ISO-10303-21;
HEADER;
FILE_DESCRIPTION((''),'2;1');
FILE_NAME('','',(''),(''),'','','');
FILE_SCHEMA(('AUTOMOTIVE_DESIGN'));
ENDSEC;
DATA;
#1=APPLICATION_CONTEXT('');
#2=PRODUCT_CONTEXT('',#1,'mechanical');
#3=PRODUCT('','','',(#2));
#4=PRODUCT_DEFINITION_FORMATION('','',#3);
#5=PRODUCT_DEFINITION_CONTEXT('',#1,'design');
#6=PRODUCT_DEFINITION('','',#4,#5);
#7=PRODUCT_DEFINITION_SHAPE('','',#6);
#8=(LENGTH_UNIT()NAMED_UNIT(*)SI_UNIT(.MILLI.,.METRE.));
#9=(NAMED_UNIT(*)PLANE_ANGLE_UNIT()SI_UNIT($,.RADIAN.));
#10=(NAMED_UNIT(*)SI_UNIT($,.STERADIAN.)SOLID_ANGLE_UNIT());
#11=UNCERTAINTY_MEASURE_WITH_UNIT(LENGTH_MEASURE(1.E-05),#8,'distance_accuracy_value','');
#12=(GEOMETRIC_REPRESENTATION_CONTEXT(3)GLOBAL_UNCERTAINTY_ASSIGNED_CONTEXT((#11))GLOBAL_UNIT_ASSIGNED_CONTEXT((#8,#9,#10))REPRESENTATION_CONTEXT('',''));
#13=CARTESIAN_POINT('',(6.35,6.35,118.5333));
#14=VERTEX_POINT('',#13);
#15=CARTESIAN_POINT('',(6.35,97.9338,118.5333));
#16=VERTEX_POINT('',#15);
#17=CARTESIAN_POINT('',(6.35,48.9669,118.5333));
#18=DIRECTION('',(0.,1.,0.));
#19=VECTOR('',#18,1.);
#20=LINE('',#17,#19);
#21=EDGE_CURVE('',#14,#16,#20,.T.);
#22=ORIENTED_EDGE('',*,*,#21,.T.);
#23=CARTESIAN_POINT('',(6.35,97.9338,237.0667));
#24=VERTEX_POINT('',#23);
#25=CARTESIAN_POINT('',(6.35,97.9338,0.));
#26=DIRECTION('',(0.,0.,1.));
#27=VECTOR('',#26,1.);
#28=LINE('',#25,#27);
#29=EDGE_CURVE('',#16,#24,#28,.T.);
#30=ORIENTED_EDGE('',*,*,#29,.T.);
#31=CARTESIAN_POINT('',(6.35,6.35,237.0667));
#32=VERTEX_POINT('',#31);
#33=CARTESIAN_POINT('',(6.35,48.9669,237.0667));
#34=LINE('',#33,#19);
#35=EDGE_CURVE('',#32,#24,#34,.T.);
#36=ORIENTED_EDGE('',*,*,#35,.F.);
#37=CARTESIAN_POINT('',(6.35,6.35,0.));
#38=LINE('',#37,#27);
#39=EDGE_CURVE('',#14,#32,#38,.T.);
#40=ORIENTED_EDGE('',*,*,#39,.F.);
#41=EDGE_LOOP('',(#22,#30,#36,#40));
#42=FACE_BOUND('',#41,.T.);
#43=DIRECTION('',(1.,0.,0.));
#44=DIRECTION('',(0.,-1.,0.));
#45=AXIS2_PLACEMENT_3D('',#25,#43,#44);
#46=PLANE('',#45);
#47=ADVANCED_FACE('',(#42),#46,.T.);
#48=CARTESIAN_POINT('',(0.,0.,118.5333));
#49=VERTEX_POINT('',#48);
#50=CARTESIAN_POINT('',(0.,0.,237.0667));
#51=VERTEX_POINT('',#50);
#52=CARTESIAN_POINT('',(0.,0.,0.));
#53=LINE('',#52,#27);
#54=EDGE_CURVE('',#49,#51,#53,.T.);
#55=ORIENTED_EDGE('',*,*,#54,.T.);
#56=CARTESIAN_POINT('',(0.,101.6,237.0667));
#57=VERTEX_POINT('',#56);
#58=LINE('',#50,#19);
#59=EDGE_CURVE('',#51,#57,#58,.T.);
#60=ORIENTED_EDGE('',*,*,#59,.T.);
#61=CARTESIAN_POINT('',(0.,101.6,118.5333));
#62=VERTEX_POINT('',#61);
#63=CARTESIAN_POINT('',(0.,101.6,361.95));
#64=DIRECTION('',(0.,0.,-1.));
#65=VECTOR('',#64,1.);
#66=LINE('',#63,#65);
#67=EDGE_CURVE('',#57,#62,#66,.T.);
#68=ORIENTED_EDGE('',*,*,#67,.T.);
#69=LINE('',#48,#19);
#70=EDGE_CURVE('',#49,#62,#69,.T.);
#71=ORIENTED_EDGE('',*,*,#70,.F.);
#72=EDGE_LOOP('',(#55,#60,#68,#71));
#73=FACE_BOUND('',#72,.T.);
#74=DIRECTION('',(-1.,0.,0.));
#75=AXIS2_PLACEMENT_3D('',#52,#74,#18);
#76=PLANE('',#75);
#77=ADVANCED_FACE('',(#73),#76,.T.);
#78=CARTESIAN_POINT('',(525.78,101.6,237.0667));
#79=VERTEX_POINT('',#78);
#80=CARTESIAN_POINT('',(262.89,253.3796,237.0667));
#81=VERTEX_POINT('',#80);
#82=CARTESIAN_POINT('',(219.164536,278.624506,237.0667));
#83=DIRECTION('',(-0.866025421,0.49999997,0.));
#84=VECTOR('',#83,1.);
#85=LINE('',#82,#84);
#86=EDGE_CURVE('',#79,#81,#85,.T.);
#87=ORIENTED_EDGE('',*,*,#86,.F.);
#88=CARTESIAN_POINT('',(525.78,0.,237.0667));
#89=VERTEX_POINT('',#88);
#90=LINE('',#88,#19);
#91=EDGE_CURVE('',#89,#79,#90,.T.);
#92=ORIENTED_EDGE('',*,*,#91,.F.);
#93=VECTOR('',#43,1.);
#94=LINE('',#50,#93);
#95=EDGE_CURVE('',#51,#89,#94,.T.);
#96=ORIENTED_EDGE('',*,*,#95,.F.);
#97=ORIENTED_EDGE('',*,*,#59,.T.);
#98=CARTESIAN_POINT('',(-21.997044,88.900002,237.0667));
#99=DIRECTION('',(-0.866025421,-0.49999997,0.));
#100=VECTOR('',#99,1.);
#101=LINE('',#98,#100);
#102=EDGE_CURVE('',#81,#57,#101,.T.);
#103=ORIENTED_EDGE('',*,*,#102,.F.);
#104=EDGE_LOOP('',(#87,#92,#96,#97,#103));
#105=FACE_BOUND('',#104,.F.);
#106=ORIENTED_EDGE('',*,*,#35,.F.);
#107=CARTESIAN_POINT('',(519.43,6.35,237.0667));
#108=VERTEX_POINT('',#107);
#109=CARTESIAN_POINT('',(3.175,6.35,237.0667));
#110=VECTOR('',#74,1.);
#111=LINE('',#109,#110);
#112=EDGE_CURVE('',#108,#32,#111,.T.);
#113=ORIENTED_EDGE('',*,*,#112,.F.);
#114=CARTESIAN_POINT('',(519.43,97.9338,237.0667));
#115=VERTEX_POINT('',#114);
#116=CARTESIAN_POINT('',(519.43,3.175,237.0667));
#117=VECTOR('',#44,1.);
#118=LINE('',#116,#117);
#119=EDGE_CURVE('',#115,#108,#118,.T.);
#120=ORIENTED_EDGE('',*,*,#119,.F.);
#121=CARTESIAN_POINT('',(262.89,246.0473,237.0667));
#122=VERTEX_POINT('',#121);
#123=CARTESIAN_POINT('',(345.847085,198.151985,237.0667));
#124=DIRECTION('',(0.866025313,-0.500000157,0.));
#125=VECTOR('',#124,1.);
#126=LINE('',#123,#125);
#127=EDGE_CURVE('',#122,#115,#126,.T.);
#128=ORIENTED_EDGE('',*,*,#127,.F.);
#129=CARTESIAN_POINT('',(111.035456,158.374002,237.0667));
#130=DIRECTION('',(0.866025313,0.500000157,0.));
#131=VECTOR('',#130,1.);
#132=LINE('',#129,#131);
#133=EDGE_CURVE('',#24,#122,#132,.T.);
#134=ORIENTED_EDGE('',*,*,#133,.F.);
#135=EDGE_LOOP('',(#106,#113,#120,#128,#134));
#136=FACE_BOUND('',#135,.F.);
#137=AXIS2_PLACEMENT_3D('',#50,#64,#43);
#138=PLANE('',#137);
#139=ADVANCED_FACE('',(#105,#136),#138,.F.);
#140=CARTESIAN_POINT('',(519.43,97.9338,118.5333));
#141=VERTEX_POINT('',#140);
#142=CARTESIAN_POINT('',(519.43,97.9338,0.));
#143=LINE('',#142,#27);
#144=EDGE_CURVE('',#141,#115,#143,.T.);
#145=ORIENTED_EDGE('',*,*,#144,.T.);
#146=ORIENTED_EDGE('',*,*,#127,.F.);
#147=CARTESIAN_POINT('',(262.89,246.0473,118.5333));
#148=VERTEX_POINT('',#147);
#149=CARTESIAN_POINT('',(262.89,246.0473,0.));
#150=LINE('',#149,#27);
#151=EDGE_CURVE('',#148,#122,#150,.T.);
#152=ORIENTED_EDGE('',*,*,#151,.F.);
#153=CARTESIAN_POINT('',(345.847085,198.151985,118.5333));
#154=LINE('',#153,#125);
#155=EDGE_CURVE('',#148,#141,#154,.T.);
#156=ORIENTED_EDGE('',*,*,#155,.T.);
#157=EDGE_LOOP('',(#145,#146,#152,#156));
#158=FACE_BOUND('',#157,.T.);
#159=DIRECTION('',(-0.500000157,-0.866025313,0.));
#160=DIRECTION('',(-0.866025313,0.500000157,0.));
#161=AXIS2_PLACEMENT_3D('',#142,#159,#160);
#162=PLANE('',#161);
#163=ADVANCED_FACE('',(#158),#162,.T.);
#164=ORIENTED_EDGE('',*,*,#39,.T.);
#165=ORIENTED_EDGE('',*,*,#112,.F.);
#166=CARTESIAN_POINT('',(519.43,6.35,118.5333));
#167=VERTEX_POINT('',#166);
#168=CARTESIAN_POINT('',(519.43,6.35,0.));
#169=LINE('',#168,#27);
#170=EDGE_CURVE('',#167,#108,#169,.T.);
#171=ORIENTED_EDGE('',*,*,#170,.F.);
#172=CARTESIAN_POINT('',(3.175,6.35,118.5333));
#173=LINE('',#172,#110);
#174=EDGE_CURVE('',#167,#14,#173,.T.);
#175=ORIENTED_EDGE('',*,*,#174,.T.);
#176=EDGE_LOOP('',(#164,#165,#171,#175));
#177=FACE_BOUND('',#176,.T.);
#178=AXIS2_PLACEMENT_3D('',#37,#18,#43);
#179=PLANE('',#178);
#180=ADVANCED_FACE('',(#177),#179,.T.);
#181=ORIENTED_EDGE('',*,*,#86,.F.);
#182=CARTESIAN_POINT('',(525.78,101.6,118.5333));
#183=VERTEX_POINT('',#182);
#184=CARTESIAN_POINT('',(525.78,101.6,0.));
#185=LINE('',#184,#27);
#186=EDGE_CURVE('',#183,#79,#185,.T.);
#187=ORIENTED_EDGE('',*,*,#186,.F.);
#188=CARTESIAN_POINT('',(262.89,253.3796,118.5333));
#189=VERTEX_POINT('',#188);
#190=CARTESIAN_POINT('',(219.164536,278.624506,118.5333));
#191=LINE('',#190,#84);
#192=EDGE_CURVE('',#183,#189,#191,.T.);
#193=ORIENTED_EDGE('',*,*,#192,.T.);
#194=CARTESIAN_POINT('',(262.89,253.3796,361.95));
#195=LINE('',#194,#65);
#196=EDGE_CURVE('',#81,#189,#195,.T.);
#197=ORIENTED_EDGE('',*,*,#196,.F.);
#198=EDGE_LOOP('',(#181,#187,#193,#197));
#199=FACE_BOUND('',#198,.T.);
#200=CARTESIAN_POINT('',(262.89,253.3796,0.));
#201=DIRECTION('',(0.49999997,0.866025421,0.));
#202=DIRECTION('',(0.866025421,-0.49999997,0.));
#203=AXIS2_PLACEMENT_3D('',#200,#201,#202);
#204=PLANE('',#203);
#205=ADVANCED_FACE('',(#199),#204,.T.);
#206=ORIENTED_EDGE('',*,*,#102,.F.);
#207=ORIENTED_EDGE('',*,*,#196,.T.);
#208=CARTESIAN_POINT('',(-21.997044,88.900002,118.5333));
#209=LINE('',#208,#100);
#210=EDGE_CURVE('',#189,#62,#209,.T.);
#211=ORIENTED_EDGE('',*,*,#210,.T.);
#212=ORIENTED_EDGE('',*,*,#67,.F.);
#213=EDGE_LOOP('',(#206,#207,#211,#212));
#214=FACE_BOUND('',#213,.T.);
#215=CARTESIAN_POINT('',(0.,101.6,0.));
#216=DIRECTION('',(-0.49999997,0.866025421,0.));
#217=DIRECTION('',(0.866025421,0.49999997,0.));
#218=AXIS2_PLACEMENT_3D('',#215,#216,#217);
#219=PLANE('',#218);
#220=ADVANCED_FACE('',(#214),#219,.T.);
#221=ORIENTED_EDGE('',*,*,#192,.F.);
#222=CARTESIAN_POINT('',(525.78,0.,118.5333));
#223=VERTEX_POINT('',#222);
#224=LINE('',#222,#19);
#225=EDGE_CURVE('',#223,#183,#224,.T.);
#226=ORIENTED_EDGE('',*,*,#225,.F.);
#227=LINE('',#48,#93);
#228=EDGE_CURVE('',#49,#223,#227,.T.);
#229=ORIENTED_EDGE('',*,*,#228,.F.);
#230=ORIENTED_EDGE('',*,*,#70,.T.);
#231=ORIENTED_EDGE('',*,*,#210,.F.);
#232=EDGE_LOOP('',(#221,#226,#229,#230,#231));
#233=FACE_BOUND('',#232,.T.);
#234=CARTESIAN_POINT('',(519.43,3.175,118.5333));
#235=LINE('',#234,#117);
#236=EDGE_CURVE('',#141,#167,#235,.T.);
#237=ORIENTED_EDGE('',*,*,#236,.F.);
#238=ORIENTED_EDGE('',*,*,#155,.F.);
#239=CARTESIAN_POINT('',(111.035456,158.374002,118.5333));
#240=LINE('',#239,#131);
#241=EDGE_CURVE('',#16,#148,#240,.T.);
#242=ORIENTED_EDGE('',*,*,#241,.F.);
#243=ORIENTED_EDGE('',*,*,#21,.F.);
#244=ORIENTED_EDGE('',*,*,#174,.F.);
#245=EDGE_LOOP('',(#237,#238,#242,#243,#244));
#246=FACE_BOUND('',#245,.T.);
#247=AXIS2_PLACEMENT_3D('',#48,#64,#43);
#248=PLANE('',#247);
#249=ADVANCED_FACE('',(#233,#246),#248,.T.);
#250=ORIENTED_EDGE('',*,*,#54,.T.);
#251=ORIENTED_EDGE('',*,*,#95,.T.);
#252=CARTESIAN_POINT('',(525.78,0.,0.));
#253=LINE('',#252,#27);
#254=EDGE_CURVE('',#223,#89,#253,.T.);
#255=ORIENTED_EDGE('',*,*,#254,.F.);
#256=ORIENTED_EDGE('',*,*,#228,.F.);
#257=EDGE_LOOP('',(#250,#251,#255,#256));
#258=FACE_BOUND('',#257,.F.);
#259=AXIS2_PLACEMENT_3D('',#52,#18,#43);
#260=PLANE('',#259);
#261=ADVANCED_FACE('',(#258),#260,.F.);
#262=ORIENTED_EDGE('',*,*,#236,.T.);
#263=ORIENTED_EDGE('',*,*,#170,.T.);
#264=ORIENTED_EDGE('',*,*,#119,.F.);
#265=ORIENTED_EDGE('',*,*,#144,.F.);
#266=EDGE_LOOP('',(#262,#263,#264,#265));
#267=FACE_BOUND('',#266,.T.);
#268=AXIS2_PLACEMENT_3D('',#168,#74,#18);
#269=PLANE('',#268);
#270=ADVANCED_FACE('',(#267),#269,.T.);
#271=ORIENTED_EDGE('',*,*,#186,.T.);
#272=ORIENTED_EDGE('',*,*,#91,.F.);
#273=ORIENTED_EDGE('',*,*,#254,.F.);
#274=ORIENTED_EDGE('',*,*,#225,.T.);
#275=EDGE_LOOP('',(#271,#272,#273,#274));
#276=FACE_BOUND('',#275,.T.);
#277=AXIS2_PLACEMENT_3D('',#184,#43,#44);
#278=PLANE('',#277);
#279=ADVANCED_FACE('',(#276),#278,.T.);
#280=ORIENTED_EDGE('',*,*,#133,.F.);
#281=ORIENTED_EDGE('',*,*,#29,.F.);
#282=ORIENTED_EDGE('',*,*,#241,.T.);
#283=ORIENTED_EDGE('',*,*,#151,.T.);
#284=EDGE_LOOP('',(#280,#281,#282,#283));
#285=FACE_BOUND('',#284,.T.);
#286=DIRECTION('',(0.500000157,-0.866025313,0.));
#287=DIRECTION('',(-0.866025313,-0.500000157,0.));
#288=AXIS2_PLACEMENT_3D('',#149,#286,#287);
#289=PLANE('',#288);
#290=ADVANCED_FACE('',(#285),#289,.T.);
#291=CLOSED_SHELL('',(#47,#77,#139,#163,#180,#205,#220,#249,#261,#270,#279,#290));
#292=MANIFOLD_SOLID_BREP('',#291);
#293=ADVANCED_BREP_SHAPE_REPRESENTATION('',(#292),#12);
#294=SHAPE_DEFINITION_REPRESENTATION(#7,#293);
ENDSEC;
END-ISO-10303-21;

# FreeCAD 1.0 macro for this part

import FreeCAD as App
import Part
import Sketcher
from FreeCAD import Vector
Q = App.Units.Quantity


def add_polygon(sketch, points):
    """Adds a closed chain of lines whose ends are joined by coincident constraints."""
    first, n = sketch.GeometryCount, len(points)
    for a, b in zip(points, points[1:] + points[:1]):
        sketch.addGeometry(Part.LineSegment(App.Vector(*a, 0), App.Vector(*b, 0)), False)
    for i in range(n):
        sketch.addConstraint(Sketcher.Constraint("Coincident", first + i, 2, first + (i + 1) % n, 1))

doc = App.newDocument("Part")
params = doc.addObject("Spreadsheet::Sheet", "Params")
for row, (alias, value) in enumerate([
    ("sketch1_height", "4 in"),
    ("sketch1_width", "20.7 in"),
    ("pad1_length", "14 in"),
    ("sketch2_height", "4 in"),
    ("sketch2_width", "20.7 in"),
    ("pad2_length", "0.25 in"),
    ("sketch3_diameter", "0.1875 in"),
    ("pocket1_length", "0.25 in"),
    ("pocket2_length", "0.25 in"),
    ("sketch5_width", "20.7 in"),
], start=1):
    params.set(f"A{row}", alias)
    params.set(f"B{row}", "=" + value)
    params.setAlias(f"B{row}", alias)

body = doc.addObject("PartDesign::Body", "Body")

# Sketch on XY plane
sketch1 = doc.addObject("Sketcher::SketchObject", "Sketch")
body.addObject(sketch1)
sketch1.AttachmentSupport = (doc.XY_Plane, [""])
sketch1.MapMode = "FlatFace"
add_polygon(sketch1, [(0, 101.6), (0, 0), (525.78, 0), (525.78, 101.6), (262.89, 253.3796)])  # lines 0-4
add_polygon(sketch1, [(6.35, 97.9338), (262.89, 246.0473), (519.43, 97.9338), (519.43, 6.35), (6.35, 6.35)])  # lines 5-9
sketch1.addConstraint([
    Sketcher.Constraint("Vertical", 0),
    Sketcher.Constraint("Horizontal", 1),
    Sketcher.Constraint("Vertical", 2),
    Sketcher.Constraint("Vertical", 7),
    Sketcher.Constraint("Horizontal", 8),
    Sketcher.Constraint("Vertical", 9),
    Sketcher.Constraint("Coincident", 0, 2, -1, 1),
    Sketcher.Constraint("Parallel", 4, 5),
    Sketcher.Constraint("Parallel", 3, 6),
    Sketcher.Constraint("Horizontal", 2, 2, 4, 2),
    Sketcher.Constraint("Horizontal", 6, 2, 9, 2),
    Sketcher.Constraint("Vertical", 3, 2, 5, 2),
    Sketcher.Constraint("Equal", 3, 4),
    Sketcher.Constraint("DistanceY", 0, 2, 0, 1, Q("4 in")),
    Sketcher.Constraint("DistanceX", 1, 1, 1, 2, Q("20.7 in")),
    Sketcher.Constraint("DistanceY", -1, 1, 7, 2, Q("0.25 in")),
    Sketcher.Constraint("DistanceX", -1, 1, 8, 2, Q("0.25 in")),
    Sketcher.Constraint("Angle", 3, Q("150 deg")),
    Sketcher.Constraint("DistanceY", 7, 2, 7, 1, Q("91.5838 mm")),
])
sketch1.setExpression("Constraints[23]", "Params.sketch1_height")
sketch1.setExpression("Constraints[24]", "Params.sketch1_width")
pad1 = doc.addObject("PartDesign::Pad", "Pad")
body.addObject(pad1)
pad1.Profile = sketch1
pad1.setExpression("Length", "Params.pad1_length")

# Sketch on XY plane
sketch2 = doc.addObject("Sketcher::SketchObject", "Sketch001")
body.addObject(sketch2)
sketch2.AttachmentSupport = (doc.XY_Plane, [""])
sketch2.MapMode = "FlatFace"
sketch2.AttachmentOffset = App.Placement(Vector(0, 0, 14 * 25.4), App.Rotation())
add_polygon(sketch2, [(0, 101.6), (0, 0), (525.78, 0), (525.78, 101.6), (262.89, 253.3796)])  # lines 0-4
sketch2.addGeometry(Part.Circle(Vector(262.89, 121.3796, 0), Vector(0, 0, 1), 60), False)  # 5
sketch2.addConstraint([
    Sketcher.Constraint("Vertical", 0),
    Sketcher.Constraint("Horizontal", 1),
    Sketcher.Constraint("Vertical", 2),
    Sketcher.Constraint("Coincident", 0, 2, -1, 1),
    Sketcher.Constraint("Horizontal", 2, 2, 4, 2),
    Sketcher.Constraint("Vertical", 5, 3, 3, 2),
    Sketcher.Constraint("Equal", 3, 4),
    Sketcher.Constraint("Diameter", 5, Q("4.7244 in")),
    Sketcher.Constraint("DistanceY", 0, 2, 0, 1, Q("4 in")),
    Sketcher.Constraint("DistanceX", 1, 1, 1, 2, Q("20.7 in")),
    Sketcher.Constraint("Angle", 3, Q("150 deg")),
    Sketcher.Constraint("DistanceY", 5, 3, 3, 2, Q("132 mm")),
])
sketch2.setExpression("Constraints[13]", "Params.sketch2_height")
sketch2.setExpression("Constraints[14]", "Params.sketch2_width")
pad2 = doc.addObject("PartDesign::Pad", "Pad001")
body.addObject(pad2)
pad2.Profile = sketch2
pad2.setExpression("Length", "Params.pad2_length")

# Sketch on XZ plane
sketch3 = doc.addObject("Sketcher::SketchObject", "Sketch002")
body.addObject(sketch3)
sketch3.AttachmentSupport = (doc.XZ_Plane, [""])
sketch3.MapMode = "FlatFace"
sketch3.addGeometry([
    Part.Circle(Vector(86.36, 44.45, 0), Vector(0, 0, 1), 2.3812),  # 0
    Part.Circle(Vector(86.36, 21.95, 0), Vector(0, 0, 1), 2.3812),  # 1
    Part.Circle(Vector(86.36, 66.95, 0), Vector(0, 0, 1), 2.3812),  # 2
    Part.Circle(Vector(226.36, 66.95, 0), Vector(0, 0, 1), 2.3813),  # 3
    Part.Circle(Vector(226.36, 44.45, 0), Vector(0, 0, 1), 2.3813),  # 4
    Part.Circle(Vector(226.36, 21.95, 0), Vector(0, 0, 1), 2.3813),  # 5
    Part.Circle(Vector(156.36, 39.45, 0), Vector(0, 0, 1), 10),  # 6
], False)
sketch3.addConstraint([
    Sketcher.Constraint("Equal", 0, 1),
    Sketcher.Constraint("Equal", 1, 2),
    Sketcher.Constraint("Equal", 2, 3),
    Sketcher.Constraint("Equal", 3, 4),
    Sketcher.Constraint("Equal", 4, 5),
    Sketcher.Constraint("Horizontal", 2, 3, 3, 3),
    Sketcher.Constraint("Horizontal", 0, 3, 4, 3),
    Sketcher.Constraint("Horizontal", 1, 3, 5, 3),
    Sketcher.Constraint("Vertical", 0, 3, 1, 3),
    Sketcher.Constraint("Vertical", 1, 3, 2, 3),
    Sketcher.Constraint("Vertical", 3, 3, 4, 3),
    Sketcher.Constraint("Vertical", 4, 3, 5, 3),
    Sketcher.Constraint("Diameter", 0, Q("0.1875 in")),
    Sketcher.Constraint("Diameter", 6, Q("0.7874 in")),
    Sketcher.Constraint("DistanceX", -1, 1, 0, 3, Q("3.4 in")),
    Sketcher.Constraint("DistanceX", 2, 3, 3, 3, Q("5.5118 in")),
    Sketcher.Constraint("DistanceY", -1, 1, 0, 3, Q("1.75 in")),
    Sketcher.Constraint("DistanceY", 1, 3, 2, 3, Q("45 mm")),
    Sketcher.Constraint("DistanceX", -1, 1, 6, 3, Q("6.1559 in")),
    Sketcher.Constraint("DistanceY", -1, 1, 1, 3, Q("21.95 mm")),
    Sketcher.Constraint("DistanceY", -1, 1, 6, 3, Q("39.45 mm")),
])
sketch3.setExpression("Constraints[12]", "Params.sketch3_diameter")
pocket1 = doc.addObject("PartDesign::Pocket", "Pocket")
body.addObject(pocket1)
pocket1.Profile = sketch3
pocket1.setExpression("Length", "Params.pocket1_length")

# Sketch on XZ plane
sketch4 = doc.addObject("Sketcher::SketchObject", "Sketch003")
body.addObject(sketch4)
sketch4.AttachmentSupport = (doc.XZ_Plane, [""])
sketch4.MapMode = "FlatFace"
add_polygon(sketch4, [(71.36, 85), (71.36, 0), (241.36, 0), (241.36, 85)])  # lines 0-3
sketch4.addConstraint([
    Sketcher.Constraint("Vertical", 0),
    Sketcher.Constraint("Horizontal", 1),
    Sketcher.Constraint("Vertical", 2),
    Sketcher.Constraint("Horizontal", 3),
    Sketcher.Constraint("PointOnObject", 0, 2, -1),
    Sketcher.Constraint("DistanceX", 1, 1, 1, 2, Q("170 mm")),
    Sketcher.Constraint("DistanceY", 0, 2, 0, 1, Q("85 mm")),
    Sketcher.Constraint("DistanceX", -1, 1, 0, 2, Q("71.36 mm")),
])
pocket2 = doc.addObject("PartDesign::Pocket", "Pocket001")
body.addObject(pocket2)
pocket2.Profile = sketch4
pocket2.setExpression("Length", "Params.pocket2_length")

# Sketch on XZ plane
sketch5 = doc.addObject("Sketcher::SketchObject", "Sketch004")
body.addObject(sketch5)
sketch5.AttachmentSupport = (doc.XZ_Plane, [""])
sketch5.MapMode = "FlatFace"
add_polygon(sketch5, [(0, 0), (525.78, 0), (525.78, 118.5333), (0, 118.5333)])  # lines 0-3
add_polygon(sketch5, [(0, 237.0667), (525.78, 237.0667), (525.78, 361.95), (0, 361.95)])  # lines 4-7
sketch5.addConstraint([
    Sketcher.Constraint("Horizontal", 0),
    Sketcher.Constraint("Vertical", 1),
    Sketcher.Constraint("Horizontal", 2),
    Sketcher.Constraint("Vertical", 3),
    Sketcher.Constraint("Horizontal", 4),
    Sketcher.Constraint("Vertical", 5),
    Sketcher.Constraint("Horizontal", 6),
    Sketcher.Constraint("Vertical", 7),
    Sketcher.Constraint("Coincident", 3, 2, -1, 1),
    Sketcher.Constraint("PointOnObject", 6, 2, -2),
    Sketcher.Constraint("Vertical", 1, 2, 4, 2),
    Sketcher.Constraint("DistanceX", 0, 1, 0, 2, Q("20.7 in")),
    Sketcher.Constraint("DistanceY", 1, 1, 1, 2, Q("118.5333 mm")),
    Sketcher.Constraint("DistanceY", -1, 1, 5, 2, Q("14.25 in")),
    Sketcher.Constraint("DistanceY", 1, 2, 4, 2, Q("118.5334 mm")),
])
sketch5.setExpression("Constraints[19]", "Params.sketch5_width")
pocket3 = doc.addObject("PartDesign::Pocket", "Pocket002")
body.addObject(pocket3)
pocket3.Profile = sketch5
pocket3.Type = "ThroughAll"

doc.recompute()
